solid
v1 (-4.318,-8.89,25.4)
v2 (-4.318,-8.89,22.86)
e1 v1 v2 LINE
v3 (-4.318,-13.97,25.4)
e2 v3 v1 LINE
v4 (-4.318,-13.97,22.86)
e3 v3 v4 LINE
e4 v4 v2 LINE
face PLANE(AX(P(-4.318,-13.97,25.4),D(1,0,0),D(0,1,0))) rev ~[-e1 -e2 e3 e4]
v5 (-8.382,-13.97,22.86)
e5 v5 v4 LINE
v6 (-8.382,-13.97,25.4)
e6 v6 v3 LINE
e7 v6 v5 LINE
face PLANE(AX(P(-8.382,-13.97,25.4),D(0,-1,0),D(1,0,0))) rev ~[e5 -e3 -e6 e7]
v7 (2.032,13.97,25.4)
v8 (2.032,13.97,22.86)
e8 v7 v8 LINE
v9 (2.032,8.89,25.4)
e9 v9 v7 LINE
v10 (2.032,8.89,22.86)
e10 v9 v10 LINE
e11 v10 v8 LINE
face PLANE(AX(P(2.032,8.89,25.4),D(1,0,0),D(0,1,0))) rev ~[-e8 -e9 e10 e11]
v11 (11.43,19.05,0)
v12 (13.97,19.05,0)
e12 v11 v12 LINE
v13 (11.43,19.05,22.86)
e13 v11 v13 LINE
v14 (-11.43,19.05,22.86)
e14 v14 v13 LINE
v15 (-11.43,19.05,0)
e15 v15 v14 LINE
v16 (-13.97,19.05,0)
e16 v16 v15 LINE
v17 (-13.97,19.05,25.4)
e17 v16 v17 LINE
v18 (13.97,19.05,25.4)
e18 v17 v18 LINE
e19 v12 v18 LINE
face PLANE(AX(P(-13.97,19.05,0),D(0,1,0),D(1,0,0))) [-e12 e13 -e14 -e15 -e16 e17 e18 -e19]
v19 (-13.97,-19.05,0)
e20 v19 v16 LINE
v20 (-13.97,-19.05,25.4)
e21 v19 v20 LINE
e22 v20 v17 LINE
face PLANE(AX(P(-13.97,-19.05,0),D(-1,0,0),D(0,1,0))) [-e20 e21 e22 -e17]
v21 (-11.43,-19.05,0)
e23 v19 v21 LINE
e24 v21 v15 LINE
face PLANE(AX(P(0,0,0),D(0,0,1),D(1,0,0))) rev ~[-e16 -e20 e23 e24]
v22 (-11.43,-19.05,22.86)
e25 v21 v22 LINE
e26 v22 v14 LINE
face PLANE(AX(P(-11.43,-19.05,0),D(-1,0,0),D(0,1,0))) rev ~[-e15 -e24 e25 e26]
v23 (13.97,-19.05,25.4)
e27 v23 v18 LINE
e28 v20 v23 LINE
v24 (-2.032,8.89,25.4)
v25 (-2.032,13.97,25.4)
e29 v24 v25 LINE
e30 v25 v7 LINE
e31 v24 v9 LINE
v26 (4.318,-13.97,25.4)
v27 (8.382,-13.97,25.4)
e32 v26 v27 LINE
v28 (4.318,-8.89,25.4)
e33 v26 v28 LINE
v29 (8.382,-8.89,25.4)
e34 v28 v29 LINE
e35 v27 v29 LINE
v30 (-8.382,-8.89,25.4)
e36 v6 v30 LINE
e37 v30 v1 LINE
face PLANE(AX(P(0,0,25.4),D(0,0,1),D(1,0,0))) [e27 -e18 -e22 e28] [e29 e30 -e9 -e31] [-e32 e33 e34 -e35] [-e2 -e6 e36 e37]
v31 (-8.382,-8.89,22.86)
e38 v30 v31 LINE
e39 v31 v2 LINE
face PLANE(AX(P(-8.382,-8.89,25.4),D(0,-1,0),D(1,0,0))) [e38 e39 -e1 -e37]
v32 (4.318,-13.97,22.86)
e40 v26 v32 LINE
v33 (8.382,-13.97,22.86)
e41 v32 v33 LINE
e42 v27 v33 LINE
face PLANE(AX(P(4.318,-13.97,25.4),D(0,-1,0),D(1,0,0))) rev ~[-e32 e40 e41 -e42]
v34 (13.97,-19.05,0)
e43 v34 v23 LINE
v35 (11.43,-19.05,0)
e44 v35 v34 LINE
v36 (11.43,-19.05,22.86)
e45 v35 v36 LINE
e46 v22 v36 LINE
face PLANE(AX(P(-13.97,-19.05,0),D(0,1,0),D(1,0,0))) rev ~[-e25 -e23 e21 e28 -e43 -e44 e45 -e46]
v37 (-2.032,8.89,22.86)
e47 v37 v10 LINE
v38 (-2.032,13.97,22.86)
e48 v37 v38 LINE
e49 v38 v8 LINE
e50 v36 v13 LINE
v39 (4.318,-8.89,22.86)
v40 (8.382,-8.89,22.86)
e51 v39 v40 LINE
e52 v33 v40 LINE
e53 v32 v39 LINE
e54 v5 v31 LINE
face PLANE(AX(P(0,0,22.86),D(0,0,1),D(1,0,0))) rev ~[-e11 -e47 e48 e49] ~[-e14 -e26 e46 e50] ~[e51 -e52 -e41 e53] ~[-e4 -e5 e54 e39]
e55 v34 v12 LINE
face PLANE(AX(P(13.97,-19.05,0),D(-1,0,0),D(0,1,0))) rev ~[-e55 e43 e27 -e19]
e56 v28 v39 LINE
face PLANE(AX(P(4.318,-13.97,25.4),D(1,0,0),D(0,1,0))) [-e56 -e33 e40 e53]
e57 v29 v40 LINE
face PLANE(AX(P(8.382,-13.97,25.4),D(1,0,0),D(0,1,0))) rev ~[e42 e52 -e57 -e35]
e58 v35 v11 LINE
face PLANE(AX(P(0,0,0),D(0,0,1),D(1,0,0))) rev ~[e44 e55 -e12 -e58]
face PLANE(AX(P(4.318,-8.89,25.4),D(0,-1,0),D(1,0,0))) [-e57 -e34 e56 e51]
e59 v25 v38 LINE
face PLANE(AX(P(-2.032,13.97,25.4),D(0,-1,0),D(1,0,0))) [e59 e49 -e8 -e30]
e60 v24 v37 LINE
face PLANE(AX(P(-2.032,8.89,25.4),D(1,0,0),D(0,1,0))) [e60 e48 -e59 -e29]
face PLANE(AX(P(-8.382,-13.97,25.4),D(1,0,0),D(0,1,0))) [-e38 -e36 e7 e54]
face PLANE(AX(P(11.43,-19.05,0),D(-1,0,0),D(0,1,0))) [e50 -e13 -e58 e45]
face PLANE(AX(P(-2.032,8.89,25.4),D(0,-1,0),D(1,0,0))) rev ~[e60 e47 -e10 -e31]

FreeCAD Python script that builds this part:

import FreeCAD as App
import Part
import Sketcher

V = App.Vector
Q = App.Units.Quantity


def faces_at(feature, points):
    """Names of the faces that lie closest to the given points."""
    faces = feature.Shape.Faces
    near = lambda p: min(range(len(faces)), key=lambda i: faces[i].distToShape(Part.Vertex(*p))[0])
    return sorted({f"Face{near(p) + 1}" for p in points})

doc = App.newDocument("Part")
body = doc.addObject("PartDesign::Body", "Body")

# Sketch on XY plane
sketch1 = body.newObject("Sketcher::SketchObject", "Sketch")
sketch1.AttachmentSupport = (doc.getObject("XY_Plane"), [""])
sketch1.MapMode = "FlatFace"
sketch1.addGeometry([
    Part.LineSegment(V(-14, 19, 0), V(-14, -19, 0)),
    Part.LineSegment(V(-14, -19, 0), V(14, -19, 0)),
    Part.LineSegment(V(14, -19, 0), V(14, 19, 0)),
    Part.LineSegment(V(14, 19, 0), V(-14, 19, 0)),
], False)
sketch1.addConstraint([
    Sketcher.Constraint("Coincident", 0, 2, 1, 1),
    Sketcher.Constraint("Coincident", 1, 2, 2, 1),
    Sketcher.Constraint("Coincident", 2, 2, 3, 1),
    Sketcher.Constraint("Coincident", 3, 2, 0, 1),
    Sketcher.Constraint("Vertical", 0),
    Sketcher.Constraint("Horizontal", 1),
    Sketcher.Constraint("Vertical", 2),
    Sketcher.Constraint("Horizontal", 3),
    Sketcher.Constraint("Symmetric", 0, 2, 2, 2, -1, 1),
    Sketcher.Constraint("DistanceX", 1, 1, 1, 2, Q("1.1 in")),
    Sketcher.Constraint("DistanceY", 0, 2, 0, 1, Q("1.5 in")),
])
pad1 = body.newObject("PartDesign::Pad", "Pad")
pad1.Profile = sketch1
pad1.Length = Q("1 in")
doc.recompute()

thickness = body.newObject("PartDesign::Thickness", "Thickness")
thickness.Base = (pad1, faces_at(pad1, [(0, -19.05, 12.7), (0, 0, 0), (0, 19.05, 12.7)]))
thickness.Value = Q("0.1 in")
thickness.Reversed = True
thickness.Join = "Arc"

# Sketch on XY plane
sketch2 = body.newObject("Sketcher::SketchObject", "Sketch001")
sketch2.AttachmentSupport = (doc.getObject("XY_Plane"), [""])
sketch2.MapMode = "FlatFace"
sketch2.AttachmentOffset = App.Placement(V(0, 0, 1 * 25.4), App.Rotation())
sketch2.addGeometry([
    Part.LineSegment(V(-2, 14, 0), V(-2, 8.9, 0)),  # 0
    Part.LineSegment(V(-2, 8.9, 0), V(2, 8.9, 0)),  # 1
    Part.LineSegment(V(2, 8.9, 0), V(2, 14, 0)),  # 2
    Part.LineSegment(V(2, 14, 0), V(-2, 14, 0)),  # 3
    Part.LineSegment(V(-8.4, -8.9, 0), V(-8.4, -14, 0)),  # 4
    Part.LineSegment(V(-8.4, -14, 0), V(-4.3, -14, 0)),  # 5
    Part.LineSegment(V(-4.3, -14, 0), V(-4.3, -8.9, 0)),  # 6
    Part.LineSegment(V(-4.3, -8.9, 0), V(-8.4, -8.9, 0)),  # 7
    Part.LineSegment(V(4.3, -8.9, 0), V(4.3, -14, 0)),  # 8
    Part.LineSegment(V(4.3, -14, 0), V(8.4, -14, 0)),  # 9
    Part.LineSegment(V(8.4, -14, 0), V(8.4, -8.9, 0)),  # 10
    Part.LineSegment(V(8.4, -8.9, 0), V(4.3, -8.9, 0)),  # 11
], False)
sketch2.addConstraint([
    Sketcher.Constraint("Coincident", 0, 2, 1, 1),
    Sketcher.Constraint("Coincident", 1, 2, 2, 1),
    Sketcher.Constraint("Coincident", 2, 2, 3, 1),
    Sketcher.Constraint("Coincident", 3, 2, 0, 1),
    Sketcher.Constraint("Coincident", 4, 2, 5, 1),
    Sketcher.Constraint("Coincident", 5, 2, 6, 1),
    Sketcher.Constraint("Coincident", 6, 2, 7, 1),
    Sketcher.Constraint("Coincident", 7, 2, 4, 1),
    Sketcher.Constraint("Coincident", 8, 2, 9, 1),
    Sketcher.Constraint("Coincident", 9, 2, 10, 1),
    Sketcher.Constraint("Coincident", 10, 2, 11, 1),
    Sketcher.Constraint("Coincident", 11, 2, 8, 1),
    Sketcher.Constraint("Vertical", 0),
    Sketcher.Constraint("Horizontal", 1),
    Sketcher.Constraint("Vertical", 2),
    Sketcher.Constraint("Horizontal", 3),
    Sketcher.Constraint("Vertical", 4),
    Sketcher.Constraint("Horizontal", 5),
    Sketcher.Constraint("Vertical", 6),
    Sketcher.Constraint("Horizontal", 7),
    Sketcher.Constraint("Vertical", 8),
    Sketcher.Constraint("Horizontal", 9),
    Sketcher.Constraint("Vertical", 10),
    Sketcher.Constraint("Horizontal", 11),
    Sketcher.Constraint("Symmetric", 5, 2, 8, 2, -2),
    Sketcher.Constraint("Symmetric", 7, 2, 10, 2, -2),
    Sketcher.Constraint("Equal", 3, 5),
    Sketcher.Constraint("Equal", 2, 4),
    Sketcher.Constraint("DistanceY", 0, 2, 0, 1, Q("0.2 in")),
    Sketcher.Constraint("DistanceX", 1, 1, 1, 2, Q("0.16 in")),
    Sketcher.Constraint("DistanceY", 4, 2, 0, 2, Q("0.9 in")),
    Sketcher.Constraint("DistanceX", 4, 2, 8, 2, Q("0.5 in")),
    Sketcher.Constraint("DistanceX", 0, 2, -1, 1, Q("0.08 in")),
    Sketcher.Constraint("DistanceY", -1, 1, 0, 2, Q("0.35 in")),
])
pocket1 = body.newObject("PartDesign::Pocket", "Pocket")
pocket1.Profile = sketch2
pocket1.Length = Q("1 in")

doc.recompute()
